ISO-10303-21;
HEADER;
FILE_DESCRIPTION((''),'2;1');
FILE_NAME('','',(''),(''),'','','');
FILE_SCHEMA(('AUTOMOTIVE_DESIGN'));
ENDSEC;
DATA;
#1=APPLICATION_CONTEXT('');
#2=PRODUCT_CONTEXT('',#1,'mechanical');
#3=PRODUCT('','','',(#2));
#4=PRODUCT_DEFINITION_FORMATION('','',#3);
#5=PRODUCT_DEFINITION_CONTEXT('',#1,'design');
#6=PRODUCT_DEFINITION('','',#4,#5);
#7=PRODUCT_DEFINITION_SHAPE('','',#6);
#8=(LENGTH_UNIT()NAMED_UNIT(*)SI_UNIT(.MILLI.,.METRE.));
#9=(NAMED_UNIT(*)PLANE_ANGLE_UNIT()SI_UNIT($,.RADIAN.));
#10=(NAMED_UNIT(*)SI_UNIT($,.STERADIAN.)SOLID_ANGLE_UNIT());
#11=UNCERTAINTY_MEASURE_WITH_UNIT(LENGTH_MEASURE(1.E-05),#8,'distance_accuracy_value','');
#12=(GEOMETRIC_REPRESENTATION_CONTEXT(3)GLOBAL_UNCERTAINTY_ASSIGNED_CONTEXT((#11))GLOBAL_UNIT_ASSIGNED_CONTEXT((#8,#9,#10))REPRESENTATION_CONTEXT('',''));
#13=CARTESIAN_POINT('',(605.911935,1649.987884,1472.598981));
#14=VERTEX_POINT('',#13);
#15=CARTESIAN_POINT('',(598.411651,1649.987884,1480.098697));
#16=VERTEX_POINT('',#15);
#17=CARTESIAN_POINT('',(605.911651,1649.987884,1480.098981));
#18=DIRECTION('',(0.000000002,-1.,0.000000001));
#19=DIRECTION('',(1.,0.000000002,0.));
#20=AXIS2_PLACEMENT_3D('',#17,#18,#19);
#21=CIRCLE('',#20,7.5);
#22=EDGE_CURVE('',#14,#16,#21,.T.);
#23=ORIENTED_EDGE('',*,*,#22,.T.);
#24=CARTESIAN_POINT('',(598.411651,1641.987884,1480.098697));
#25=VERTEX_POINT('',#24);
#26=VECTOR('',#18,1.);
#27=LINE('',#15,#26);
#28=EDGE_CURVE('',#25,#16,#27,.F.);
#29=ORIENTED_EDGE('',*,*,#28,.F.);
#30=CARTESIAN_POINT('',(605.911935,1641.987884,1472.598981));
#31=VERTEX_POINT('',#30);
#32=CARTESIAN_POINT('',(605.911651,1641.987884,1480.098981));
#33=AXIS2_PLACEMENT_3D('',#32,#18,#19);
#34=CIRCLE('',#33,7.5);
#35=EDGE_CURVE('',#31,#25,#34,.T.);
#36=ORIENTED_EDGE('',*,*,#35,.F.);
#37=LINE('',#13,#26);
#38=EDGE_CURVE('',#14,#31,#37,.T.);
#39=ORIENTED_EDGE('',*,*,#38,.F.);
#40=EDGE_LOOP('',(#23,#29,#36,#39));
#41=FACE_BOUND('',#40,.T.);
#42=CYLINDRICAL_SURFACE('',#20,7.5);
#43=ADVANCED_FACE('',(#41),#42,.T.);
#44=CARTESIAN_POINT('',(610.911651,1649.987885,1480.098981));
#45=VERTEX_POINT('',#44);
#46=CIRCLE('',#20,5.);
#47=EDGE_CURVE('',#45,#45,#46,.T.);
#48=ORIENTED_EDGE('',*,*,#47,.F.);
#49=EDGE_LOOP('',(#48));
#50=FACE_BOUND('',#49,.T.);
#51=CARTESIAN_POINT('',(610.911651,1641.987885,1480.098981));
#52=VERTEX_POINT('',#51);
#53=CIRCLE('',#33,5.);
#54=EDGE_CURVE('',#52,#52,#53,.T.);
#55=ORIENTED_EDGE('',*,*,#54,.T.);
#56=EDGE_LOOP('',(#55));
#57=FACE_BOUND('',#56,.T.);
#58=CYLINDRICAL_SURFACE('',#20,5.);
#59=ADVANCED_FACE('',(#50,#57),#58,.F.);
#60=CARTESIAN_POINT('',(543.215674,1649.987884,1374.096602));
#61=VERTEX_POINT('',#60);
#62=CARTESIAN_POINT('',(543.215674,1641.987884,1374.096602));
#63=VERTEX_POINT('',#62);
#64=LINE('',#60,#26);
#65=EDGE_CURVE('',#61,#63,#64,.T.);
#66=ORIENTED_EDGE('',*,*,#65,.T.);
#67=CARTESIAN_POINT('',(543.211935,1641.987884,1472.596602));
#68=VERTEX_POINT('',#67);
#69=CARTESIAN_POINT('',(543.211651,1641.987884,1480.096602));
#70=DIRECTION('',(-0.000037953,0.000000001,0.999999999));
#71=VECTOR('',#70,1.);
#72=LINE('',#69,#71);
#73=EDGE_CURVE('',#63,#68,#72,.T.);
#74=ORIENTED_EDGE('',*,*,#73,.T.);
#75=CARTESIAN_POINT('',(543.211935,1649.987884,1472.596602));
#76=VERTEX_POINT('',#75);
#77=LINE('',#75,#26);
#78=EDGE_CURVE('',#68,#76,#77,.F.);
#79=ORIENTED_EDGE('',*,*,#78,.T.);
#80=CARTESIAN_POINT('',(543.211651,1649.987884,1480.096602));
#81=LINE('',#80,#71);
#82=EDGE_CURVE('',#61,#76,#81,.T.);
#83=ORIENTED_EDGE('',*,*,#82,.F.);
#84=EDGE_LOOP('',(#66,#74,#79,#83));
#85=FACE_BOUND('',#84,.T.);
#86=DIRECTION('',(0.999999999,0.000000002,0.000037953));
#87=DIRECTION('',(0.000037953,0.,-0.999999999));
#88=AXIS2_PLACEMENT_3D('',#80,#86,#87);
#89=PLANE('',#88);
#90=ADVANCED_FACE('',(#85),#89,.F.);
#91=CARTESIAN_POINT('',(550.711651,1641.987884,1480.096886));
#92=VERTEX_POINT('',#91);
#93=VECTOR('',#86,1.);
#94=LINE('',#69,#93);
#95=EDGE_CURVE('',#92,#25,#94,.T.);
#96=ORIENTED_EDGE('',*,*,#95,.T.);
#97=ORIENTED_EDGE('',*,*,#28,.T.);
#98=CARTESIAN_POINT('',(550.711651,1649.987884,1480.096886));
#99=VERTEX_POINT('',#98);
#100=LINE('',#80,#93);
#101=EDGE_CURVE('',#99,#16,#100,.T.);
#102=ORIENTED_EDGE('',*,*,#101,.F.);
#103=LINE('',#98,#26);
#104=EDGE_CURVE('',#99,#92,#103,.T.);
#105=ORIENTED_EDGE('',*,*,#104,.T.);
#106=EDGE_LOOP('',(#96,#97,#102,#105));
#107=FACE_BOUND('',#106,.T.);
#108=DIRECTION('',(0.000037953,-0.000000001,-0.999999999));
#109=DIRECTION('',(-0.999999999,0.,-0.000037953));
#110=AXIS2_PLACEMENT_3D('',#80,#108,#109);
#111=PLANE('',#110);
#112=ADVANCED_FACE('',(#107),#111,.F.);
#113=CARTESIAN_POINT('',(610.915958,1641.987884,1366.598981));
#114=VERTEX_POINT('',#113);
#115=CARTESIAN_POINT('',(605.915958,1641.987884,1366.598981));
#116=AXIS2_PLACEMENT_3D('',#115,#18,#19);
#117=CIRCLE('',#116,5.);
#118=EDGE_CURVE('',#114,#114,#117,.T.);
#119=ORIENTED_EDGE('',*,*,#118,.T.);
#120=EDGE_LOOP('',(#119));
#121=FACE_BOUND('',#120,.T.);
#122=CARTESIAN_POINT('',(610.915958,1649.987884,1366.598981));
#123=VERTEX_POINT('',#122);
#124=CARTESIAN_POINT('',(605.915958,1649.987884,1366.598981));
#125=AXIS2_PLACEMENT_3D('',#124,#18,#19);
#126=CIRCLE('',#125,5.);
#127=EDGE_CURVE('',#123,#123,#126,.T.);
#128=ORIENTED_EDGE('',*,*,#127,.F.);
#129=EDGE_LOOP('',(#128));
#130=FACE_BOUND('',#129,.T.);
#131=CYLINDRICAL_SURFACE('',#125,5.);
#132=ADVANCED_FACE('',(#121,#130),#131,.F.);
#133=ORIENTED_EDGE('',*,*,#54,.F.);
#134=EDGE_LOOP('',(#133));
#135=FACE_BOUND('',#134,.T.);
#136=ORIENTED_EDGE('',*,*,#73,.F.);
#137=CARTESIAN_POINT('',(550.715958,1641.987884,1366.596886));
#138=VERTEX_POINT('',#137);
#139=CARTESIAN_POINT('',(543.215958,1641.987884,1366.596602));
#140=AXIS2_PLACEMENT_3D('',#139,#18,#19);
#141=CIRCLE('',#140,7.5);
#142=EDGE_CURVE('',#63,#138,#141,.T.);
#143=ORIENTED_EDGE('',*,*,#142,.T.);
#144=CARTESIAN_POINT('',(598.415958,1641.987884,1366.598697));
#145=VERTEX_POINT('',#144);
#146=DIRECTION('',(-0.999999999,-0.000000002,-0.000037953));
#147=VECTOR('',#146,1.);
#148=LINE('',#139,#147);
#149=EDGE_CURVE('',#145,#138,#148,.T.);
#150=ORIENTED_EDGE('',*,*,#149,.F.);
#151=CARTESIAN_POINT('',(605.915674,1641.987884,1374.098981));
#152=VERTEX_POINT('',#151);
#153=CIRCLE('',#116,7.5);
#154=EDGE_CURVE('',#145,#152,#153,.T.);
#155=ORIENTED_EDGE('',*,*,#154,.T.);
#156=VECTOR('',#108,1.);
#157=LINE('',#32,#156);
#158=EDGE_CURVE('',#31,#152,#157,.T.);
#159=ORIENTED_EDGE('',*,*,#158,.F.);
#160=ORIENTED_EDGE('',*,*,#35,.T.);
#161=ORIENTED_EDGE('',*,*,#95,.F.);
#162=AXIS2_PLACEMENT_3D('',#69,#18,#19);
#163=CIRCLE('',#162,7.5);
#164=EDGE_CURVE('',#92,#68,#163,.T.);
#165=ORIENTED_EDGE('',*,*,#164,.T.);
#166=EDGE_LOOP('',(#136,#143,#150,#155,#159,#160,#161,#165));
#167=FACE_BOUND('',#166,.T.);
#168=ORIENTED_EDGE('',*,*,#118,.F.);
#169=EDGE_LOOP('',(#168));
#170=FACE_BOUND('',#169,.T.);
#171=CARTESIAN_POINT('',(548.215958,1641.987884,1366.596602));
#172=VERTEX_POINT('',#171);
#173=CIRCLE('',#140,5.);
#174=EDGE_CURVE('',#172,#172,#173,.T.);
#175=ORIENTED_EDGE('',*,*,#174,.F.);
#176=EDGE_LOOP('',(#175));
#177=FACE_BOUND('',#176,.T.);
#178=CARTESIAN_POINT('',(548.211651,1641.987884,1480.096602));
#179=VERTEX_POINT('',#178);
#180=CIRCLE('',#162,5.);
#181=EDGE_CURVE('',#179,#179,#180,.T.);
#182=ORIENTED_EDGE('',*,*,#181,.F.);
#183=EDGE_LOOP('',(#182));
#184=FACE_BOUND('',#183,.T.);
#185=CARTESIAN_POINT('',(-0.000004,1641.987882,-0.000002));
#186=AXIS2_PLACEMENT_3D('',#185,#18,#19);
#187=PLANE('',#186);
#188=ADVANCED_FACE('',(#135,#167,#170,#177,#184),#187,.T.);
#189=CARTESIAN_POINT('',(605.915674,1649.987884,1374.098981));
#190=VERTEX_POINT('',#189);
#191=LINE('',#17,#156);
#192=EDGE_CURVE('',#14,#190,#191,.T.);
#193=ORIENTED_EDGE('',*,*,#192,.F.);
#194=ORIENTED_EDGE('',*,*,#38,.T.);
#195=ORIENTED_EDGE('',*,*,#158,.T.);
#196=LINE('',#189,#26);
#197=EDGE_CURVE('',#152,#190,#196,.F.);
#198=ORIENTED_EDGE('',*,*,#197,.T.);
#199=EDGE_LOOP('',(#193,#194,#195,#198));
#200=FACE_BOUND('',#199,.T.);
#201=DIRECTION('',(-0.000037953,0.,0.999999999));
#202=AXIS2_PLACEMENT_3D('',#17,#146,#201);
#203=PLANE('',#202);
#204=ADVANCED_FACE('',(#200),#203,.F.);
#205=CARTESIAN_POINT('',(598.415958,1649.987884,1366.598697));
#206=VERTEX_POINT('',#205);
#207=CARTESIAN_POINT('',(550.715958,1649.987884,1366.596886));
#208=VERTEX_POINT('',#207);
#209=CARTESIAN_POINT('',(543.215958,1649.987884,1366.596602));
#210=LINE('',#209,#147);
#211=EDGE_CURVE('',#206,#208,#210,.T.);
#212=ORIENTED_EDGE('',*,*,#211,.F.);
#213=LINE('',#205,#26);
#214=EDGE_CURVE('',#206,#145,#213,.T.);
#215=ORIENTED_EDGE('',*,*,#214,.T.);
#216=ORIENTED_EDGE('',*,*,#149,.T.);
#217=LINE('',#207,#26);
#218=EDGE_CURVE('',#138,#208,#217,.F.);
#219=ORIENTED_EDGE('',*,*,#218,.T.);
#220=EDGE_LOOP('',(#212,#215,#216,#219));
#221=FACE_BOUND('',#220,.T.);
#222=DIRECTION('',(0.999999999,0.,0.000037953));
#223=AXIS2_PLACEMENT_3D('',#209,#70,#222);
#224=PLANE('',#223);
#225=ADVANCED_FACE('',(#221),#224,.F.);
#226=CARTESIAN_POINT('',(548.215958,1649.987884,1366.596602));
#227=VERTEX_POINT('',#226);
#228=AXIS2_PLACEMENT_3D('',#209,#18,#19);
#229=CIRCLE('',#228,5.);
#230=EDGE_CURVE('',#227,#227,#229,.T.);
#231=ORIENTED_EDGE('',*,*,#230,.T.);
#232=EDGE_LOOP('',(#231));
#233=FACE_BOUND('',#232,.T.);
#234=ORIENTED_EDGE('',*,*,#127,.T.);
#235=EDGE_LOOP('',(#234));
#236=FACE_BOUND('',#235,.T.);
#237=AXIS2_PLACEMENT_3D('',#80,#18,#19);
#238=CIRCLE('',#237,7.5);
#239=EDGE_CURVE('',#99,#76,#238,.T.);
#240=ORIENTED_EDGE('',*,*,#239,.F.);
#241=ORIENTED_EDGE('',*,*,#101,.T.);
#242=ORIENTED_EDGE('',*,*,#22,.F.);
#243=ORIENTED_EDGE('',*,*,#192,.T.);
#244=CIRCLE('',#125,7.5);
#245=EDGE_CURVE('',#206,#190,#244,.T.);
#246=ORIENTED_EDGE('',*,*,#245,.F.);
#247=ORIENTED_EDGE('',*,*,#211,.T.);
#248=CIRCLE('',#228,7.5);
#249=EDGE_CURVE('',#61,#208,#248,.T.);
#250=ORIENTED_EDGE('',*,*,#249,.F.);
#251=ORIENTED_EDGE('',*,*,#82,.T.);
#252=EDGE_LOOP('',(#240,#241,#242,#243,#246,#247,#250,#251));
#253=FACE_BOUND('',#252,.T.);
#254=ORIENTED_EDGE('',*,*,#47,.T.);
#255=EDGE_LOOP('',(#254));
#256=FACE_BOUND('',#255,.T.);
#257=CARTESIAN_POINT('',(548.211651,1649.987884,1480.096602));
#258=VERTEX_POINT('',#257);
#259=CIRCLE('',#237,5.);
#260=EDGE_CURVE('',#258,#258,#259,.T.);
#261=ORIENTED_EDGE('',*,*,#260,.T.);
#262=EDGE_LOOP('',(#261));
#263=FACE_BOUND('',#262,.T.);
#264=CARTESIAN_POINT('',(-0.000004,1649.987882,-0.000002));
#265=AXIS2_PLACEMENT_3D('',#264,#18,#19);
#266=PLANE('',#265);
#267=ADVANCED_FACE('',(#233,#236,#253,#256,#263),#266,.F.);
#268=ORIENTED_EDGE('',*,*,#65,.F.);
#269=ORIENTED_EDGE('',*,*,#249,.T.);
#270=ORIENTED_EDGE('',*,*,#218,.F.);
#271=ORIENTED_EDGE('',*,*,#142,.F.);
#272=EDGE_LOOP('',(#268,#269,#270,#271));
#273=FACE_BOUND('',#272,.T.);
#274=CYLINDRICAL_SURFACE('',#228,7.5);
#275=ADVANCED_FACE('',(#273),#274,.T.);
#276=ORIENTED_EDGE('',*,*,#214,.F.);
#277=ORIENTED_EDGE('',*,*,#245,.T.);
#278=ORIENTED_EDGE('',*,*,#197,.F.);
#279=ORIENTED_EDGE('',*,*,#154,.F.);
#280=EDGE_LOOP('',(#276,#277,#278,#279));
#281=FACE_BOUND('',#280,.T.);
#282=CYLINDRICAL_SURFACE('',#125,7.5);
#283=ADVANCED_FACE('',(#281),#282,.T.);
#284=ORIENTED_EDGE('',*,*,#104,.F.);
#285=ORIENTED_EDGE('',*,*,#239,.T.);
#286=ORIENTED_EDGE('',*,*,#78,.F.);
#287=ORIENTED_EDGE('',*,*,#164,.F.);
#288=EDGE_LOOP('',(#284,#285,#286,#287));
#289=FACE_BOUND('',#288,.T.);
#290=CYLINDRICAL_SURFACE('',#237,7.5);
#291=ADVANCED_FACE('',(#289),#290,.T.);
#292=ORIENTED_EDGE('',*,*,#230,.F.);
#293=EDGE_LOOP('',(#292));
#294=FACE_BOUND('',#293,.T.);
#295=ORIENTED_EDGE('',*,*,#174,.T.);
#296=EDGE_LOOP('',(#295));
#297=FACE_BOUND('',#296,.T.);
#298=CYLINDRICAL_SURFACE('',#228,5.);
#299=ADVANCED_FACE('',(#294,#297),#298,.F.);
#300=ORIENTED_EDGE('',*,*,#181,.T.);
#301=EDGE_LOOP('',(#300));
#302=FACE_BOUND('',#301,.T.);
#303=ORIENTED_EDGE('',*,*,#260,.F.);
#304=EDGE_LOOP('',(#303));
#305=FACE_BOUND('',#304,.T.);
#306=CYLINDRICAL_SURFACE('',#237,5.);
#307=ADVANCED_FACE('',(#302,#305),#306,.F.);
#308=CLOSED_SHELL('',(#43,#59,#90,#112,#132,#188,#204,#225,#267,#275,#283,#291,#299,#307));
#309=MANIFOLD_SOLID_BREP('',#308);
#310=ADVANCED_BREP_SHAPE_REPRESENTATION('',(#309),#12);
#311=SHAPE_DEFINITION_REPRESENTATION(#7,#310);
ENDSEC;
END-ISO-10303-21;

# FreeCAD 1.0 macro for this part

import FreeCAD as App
import Part
import Sketcher
from FreeCAD import Vector


def add_polygon(sketch, points):
    """Adds a closed chain of lines whose ends are joined by coincident constraints."""
    first, n = sketch.GeometryCount, len(points)
    for a, b in zip(points, points[1:] + points[:1]):
        sketch.addGeometry(Part.LineSegment(App.Vector(*a, 0), App.Vector(*b, 0)), False)
    for i in range(n):
        sketch.addConstraint(Sketcher.Constraint("Coincident", first + i, 2, first + (i + 1) % n, 1))

doc = App.newDocument("Part")
body = doc.addObject("PartDesign::Body", "Body")

# Sketch on XZ plane
sketch1 = body.newObject("Sketcher::SketchObject", "Sketch")
sketch1.AttachmentSupport = (doc.getObject("XZ_Plane"), [""])
sketch1.MapMode = "FlatFace"
sketch1.AttachmentOffset = App.Placement(Vector(0, 0, -1641.987882), App.Rotation())
add_polygon(sketch1, [(543, 1367), (543, 1480), (606, 1480), (606, 1367)])  # lines 0-3
sketch1.addConstraint(Sketcher.Constraint("Perpendicular", 0, 1))
sketch1.addConstraint(Sketcher.Constraint("Perpendicular", 1, 2))
sketch1.addConstraint(Sketcher.Constraint("Perpendicular", 2, 3))
sketch1.addConstraint(Sketcher.Constraint("Distance", 0, 113.5))
sketch1.addConstraint(Sketcher.Constraint("Distance", 1, 62.7))
sketch1.addConstraint(Sketcher.Constraint("DistanceY", -1, 1, 0, 2, 1480.096601))
sketch1.addConstraint(Sketcher.Constraint("DistanceX", -1, 1, 0, 2, 543.21165))
sketch1.addConstraint(Sketcher.Constraint("DistanceY", -1, 1, 1, 2, 1480.098981))
pad1 = body.newObject("PartDesign::Pad", "Pad")
pad1.Profile = sketch1
pad1.Length = 8
pad1.Reversed = True

# Sketch on XZ plane
sketch2 = body.newObject("Sketcher::SketchObject", "Sketch001")
sketch2.AttachmentSupport = (doc.getObject("XZ_Plane"), [""])
sketch2.MapMode = "FlatFace"
sketch2.AttachmentOffset = App.Placement(Vector(0, 0, -1641.987882), App.Rotation())
sketch2.addGeometry(Part.Circle(Vector(543, 1367, 0), Vector(0, 0, 1), 8), False)
sketch2.addGeometry(Part.Circle(Vector(606, 1367, 0), Vector(0, 0, 1), 8), False)
sketch2.addGeometry(Part.Circle(Vector(606, 1480, 0), Vector(0, 0, 1), 8), False)
sketch2.addGeometry(Part.Circle(Vector(543, 1480, 0), Vector(0, 0, 1), 8), False)
sketch2.addConstraint(Sketcher.Constraint("Equal", 0, 1))
sketch2.addConstraint(Sketcher.Constraint("Equal", 1, 2))
sketch2.addConstraint(Sketcher.Constraint("Equal", 2, 3))
sketch2.addConstraint(Sketcher.Constraint("Diameter", 0, 15.0))
sketch2.addConstraint(Sketcher.Constraint("DistanceX", 0, 3, 1, 3, 62.7))
sketch2.addConstraint(Sketcher.Constraint("DistanceY", 1, 3, 2, 3, 113.5))
sketch2.addConstraint(Sketcher.Constraint("DistanceX", 3, 3, 2, 3, 62.7))
sketch2.addConstraint(Sketcher.Constraint("DistanceY", 0, 3, 3, 3, 113.5))
sketch2.addConstraint(Sketcher.Constraint("DistanceY", -1, 1, 0, 3, 1366.596601))
sketch2.addConstraint(Sketcher.Constraint("DistanceX", -1, 1, 0, 3, 543.215958))
sketch2.addConstraint(Sketcher.Constraint("DistanceY", -1, 1, 1, 3, 1366.598981))
sketch2.addConstraint(Sketcher.Constraint("DistanceX", -1, 1, 2, 3, 605.91165))
pad2 = body.newObject("PartDesign::Pad", "Pad001")
pad2.Profile = sketch2
pad2.Length = 8
pad2.Reversed = True

# Sketch on XZ plane
sketch3 = body.newObject("Sketcher::SketchObject", "Sketch002")
sketch3.AttachmentSupport = (doc.getObject("XZ_Plane"), [""])
sketch3.MapMode = "FlatFace"
sketch3.AttachmentOffset = App.Placement(Vector(0, 0, -1641.987882), App.Rotation())
sketch3.addGeometry(Part.Circle(Vector(543, 1480, 0), Vector(0, 0, 1), 5), False)
sketch3.addGeometry(Part.Circle(Vector(606, 1480, 0), Vector(0, 0, 1), 5), False)
sketch3.addGeometry(Part.Circle(Vector(606, 1367, 0), Vector(0, 0, 1), 5), False)
sketch3.addGeometry(Part.Circle(Vector(543, 1367, 0), Vector(0, 0, 1), 5), False)
sketch3.addConstraint(Sketcher.Constraint("Equal", 0, 1))
sketch3.addConstraint(Sketcher.Constraint("Equal", 1, 2))
sketch3.addConstraint(Sketcher.Constraint("Equal", 2, 3))
sketch3.addConstraint(Sketcher.Constraint("Diameter", 0, 10.0))
sketch3.addConstraint(Sketcher.Constraint("DistanceX", 0, 3, 1, 3, 62.7))
sketch3.addConstraint(Sketcher.Constraint("DistanceY", 2, 3, 1, 3, 113.5))
sketch3.addConstraint(Sketcher.Constraint("DistanceX", 3, 3, 2, 3, 62.7))
sketch3.addConstraint(Sketcher.Constraint("DistanceY", 3, 3, 0, 3, 113.5))
sketch3.addConstraint(Sketcher.Constraint("DistanceY", -1, 1, 0, 3, 1480.096601))
sketch3.addConstraint(Sketcher.Constraint("DistanceX", -1, 1, 0, 3, 543.21165))
sketch3.addConstraint(Sketcher.Constraint("DistanceY", -1, 1, 1, 3, 1480.098981))
sketch3.addConstraint(Sketcher.Constraint("DistanceX", -1, 1, 3, 3, 543.215958))
pocket1 = body.newObject("PartDesign::Pocket", "Pocket")
pocket1.Profile = sketch3
pocket1.Length = 8

doc.recompute()
